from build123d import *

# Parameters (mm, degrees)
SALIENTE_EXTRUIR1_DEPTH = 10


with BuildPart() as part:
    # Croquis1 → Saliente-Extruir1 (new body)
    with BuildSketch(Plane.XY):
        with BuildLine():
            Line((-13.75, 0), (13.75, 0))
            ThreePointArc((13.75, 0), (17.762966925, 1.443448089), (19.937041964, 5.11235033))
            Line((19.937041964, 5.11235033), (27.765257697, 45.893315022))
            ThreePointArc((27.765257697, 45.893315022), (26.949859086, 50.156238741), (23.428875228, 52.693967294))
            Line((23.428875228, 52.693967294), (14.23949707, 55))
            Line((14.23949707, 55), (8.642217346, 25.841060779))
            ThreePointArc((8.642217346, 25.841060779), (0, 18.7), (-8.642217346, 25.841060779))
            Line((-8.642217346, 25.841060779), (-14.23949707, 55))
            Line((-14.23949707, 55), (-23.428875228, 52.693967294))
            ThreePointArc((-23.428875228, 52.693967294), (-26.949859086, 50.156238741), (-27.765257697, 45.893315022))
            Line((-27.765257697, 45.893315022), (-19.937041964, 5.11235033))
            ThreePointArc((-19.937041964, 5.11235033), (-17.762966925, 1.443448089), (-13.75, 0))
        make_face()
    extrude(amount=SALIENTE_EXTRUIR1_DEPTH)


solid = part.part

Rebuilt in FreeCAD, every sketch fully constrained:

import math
import FreeCAD as App
import Part
import Sketcher
from FreeCAD import Vector

doc = App.newDocument("Part")
body = doc.addObject("PartDesign::Body", "Body")

# Sketch on XY plane
sketch1 = body.newObject("Sketcher::SketchObject", "Sketch")
sketch1.AttachmentSupport = (doc.getObject("XY_Plane"), [""])
sketch1.MapMode = "FlatFace"
sketch1.addGeometry(Part.LineSegment(Vector(-14, 0, 0), Vector(14, 0, 0)), False)
sketch1.addGeometry(Part.ArcOfCircle(Part.Circle(Vector(14, 6, 0), Vector(0, 0, 1), 6), math.radians(-90), math.radians(-11)), False)
sketch1.addGeometry(Part.LineSegment(Vector(20, 5, 0), Vector(28, 46, 0)), False)
sketch1.addGeometry(Part.ArcOfCircle(Part.Circle(Vector(22, 47, 0), Vector(0, 0, 1), 6), math.radians(-11), math.radians(76)), False)
sketch1.addGeometry(Part.LineSegment(Vector(23, 53, 0), Vector(14, 55, 0)), False)
sketch1.addGeometry(Part.LineSegment(Vector(14, 55, 0), Vector(9, 26, 0)), False)
sketch1.addGeometry(Part.ArcOfCircle(Part.Circle(Vector(0, 28, 0), Vector(0, 0, 1), 9), math.radians(-169), math.radians(-11)), False)
sketch1.addGeometry(Part.LineSegment(Vector(-9, 26, 0), Vector(-14, 55, 0)), False)
sketch1.addGeometry(Part.LineSegment(Vector(-14, 55, 0), Vector(-23, 53, 0)), False)
sketch1.addGeometry(Part.ArcOfCircle(Part.Circle(Vector(-22, 47, 0), Vector(0, 0, 1), 6), math.radians(104), math.radians(191)), False)
sketch1.addGeometry(Part.LineSegment(Vector(-28, 46, 0), Vector(-20, 5, 0)), False)
sketch1.addGeometry(Part.ArcOfCircle(Part.Circle(Vector(-14, 6, 0), Vector(0, 0, 1), 6), math.radians(-169), math.radians(-90)), False)
sketch1.addConstraint(Sketcher.Constraint("Tangent", 0, 2, 1, 1))
sketch1.addConstraint(Sketcher.Constraint("Tangent", 1, 2, 2, 1))
sketch1.addConstraint(Sketcher.Constraint("Tangent", 2, 2, 3, 1))
sketch1.addConstraint(Sketcher.Constraint("Tangent", 3, 2, 4, 1))
sketch1.addConstraint(Sketcher.Constraint("Coincident", 4, 2, 5, 1))
sketch1.addConstraint(Sketcher.Constraint("Tangent", 5, 2, 6, 2))
sketch1.addConstraint(Sketcher.Constraint("Tangent", 6, 1, 7, 1))
sketch1.addConstraint(Sketcher.Constraint("Coincident", 7, 2, 8, 1))
sketch1.addConstraint(Sketcher.Constraint("Tangent", 8, 2, 9, 1))
sketch1.addConstraint(Sketcher.Constraint("Tangent", 9, 2, 10, 1))
sketch1.addConstraint(Sketcher.Constraint("Tangent", 10, 2, 11, 1))
sketch1.addConstraint(Sketcher.Constraint("Tangent", 11, 2, 0, 1))
sketch1.addConstraint(Sketcher.Constraint("Horizontal", 0))
sketch1.addConstraint(Sketcher.Constraint("Equal", 3, 9))
sketch1.addConstraint(Sketcher.Constraint("Equal", 1, 11))
sketch1.addConstraint(Sketcher.Constraint("Symmetric", 0, 2, 11, 2, -1, 1))
sketch1.addConstraint(Sketcher.Constraint("Symmetric", 3, 3, 9, 3, -2))
sketch1.addConstraint(Sketcher.Constraint("Symmetric", 5, 2, 6, 1, -2))
sketch1.addConstraint(Sketcher.Constraint("Parallel", 2, 5))
sketch1.addConstraint(Sketcher.Constraint("Horizontal", 4, 2, 7, 2))
sketch1.addConstraint(Sketcher.Constraint("Radius", 1, 6.3))
sketch1.addConstraint(Sketcher.Constraint("Radius", 6, 8.8))
sketch1.addConstraint(Sketcher.Constraint("DistanceX", 0, 1, 0, 2, 27.5))
sketch1.addConstraint(Sketcher.Constraint("DistanceX", -1, 1, 3, 3, 22.0))
sketch1.addConstraint(Sketcher.Constraint("DistanceY", -1, 1, 3, 3, 47.0))
sketch1.addConstraint(Sketcher.Constraint("DistanceY", -1, 1, 4, 2, 55.0))
sketch1.addConstraint(Sketcher.Constraint("DistanceY", -1, 1, 6, 3, 27.5))
sketch1.addConstraint(Sketcher.Constraint("Radius", 3, 5.870515))
pad1 = body.newObject("PartDesign::Pad", "Pad")
pad1.Profile = sketch1
pad1.Length = 10

doc.recompute()
